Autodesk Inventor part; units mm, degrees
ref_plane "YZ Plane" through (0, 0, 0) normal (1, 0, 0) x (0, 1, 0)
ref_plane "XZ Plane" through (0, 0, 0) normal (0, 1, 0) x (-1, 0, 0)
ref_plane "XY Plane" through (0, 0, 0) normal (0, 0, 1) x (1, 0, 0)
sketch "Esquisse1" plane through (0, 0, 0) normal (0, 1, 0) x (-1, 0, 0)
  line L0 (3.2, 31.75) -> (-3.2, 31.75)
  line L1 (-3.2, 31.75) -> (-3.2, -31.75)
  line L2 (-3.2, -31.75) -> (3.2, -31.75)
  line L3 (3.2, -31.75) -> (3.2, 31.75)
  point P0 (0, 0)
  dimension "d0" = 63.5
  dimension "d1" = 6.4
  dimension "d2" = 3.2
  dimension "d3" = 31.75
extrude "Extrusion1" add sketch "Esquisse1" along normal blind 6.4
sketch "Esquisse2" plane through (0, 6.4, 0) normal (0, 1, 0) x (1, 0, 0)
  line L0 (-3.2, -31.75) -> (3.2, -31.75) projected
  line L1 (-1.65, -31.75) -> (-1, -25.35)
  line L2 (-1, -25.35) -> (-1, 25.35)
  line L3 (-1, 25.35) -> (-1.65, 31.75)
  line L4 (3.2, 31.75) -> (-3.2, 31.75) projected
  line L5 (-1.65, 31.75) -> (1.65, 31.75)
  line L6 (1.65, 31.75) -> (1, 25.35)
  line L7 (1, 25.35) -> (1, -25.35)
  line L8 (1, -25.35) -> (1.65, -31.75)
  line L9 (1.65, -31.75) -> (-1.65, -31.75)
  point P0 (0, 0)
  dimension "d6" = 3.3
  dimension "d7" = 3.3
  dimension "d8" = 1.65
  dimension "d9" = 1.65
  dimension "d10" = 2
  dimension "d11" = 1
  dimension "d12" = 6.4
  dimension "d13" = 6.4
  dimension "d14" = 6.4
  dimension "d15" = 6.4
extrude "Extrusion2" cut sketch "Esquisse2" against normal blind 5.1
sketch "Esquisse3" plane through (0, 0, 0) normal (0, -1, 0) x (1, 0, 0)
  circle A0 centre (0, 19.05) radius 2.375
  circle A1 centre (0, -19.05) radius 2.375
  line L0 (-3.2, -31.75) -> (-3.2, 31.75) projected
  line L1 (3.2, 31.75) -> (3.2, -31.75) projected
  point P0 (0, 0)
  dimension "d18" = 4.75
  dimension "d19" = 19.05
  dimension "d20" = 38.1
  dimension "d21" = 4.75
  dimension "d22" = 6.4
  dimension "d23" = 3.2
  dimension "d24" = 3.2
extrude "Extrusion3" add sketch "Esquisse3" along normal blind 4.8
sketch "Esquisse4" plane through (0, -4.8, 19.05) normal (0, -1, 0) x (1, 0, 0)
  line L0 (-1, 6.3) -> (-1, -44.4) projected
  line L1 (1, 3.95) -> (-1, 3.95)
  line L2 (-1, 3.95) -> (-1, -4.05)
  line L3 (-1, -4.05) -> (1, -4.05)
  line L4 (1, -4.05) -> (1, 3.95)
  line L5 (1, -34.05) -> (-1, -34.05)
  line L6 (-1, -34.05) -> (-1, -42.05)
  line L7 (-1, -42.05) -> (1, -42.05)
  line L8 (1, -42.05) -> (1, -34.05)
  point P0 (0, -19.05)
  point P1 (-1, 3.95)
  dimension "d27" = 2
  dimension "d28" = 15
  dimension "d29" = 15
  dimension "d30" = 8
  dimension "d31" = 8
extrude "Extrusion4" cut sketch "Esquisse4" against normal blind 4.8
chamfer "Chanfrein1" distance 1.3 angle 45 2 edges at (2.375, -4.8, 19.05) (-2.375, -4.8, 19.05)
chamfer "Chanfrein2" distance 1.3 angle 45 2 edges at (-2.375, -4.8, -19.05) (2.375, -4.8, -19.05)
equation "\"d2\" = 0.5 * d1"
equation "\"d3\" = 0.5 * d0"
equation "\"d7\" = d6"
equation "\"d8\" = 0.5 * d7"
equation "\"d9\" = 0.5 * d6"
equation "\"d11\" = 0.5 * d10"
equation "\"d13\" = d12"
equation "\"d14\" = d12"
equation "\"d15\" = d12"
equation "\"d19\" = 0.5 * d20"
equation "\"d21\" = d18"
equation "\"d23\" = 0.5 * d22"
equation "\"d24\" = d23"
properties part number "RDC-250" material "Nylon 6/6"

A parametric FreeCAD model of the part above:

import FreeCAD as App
import Part
import Sketcher

V = App.Vector
Q = App.Units.Quantity


def edges_at(feature, points):
    """Names of the edges that pass closest to the given points."""
    edges = feature.Shape.Edges
    near = lambda p: min(range(len(edges)), key=lambda i: edges[i].distToShape(Part.Vertex(*p))[0])
    return sorted({f"Edge{near(p) + 1}" for p in points})

doc = App.newDocument("Part")
body = doc.addObject("PartDesign::Body", "Body")

# Sketch on XZ plane
sketch1 = body.newObject("Sketcher::SketchObject", "Sketch")
sketch1.AttachmentSupport = (doc.getObject("XZ_Plane"), [""])
sketch1.MapMode = "FlatFace"
sketch1.addGeometry(Part.LineSegment(V(-3.2, -31.75, 0), V(-3.2, 31.75, 0)), False)
sketch1.addGeometry(Part.LineSegment(V(-3.2, 31.75, 0), V(3.2, 31.75, 0)), False)
sketch1.addGeometry(Part.LineSegment(V(3.2, 31.75, 0), V(3.2, -31.75, 0)), False)
sketch1.addGeometry(Part.LineSegment(V(3.2, -31.75, 0), V(-3.2, -31.75, 0)), False)
sketch1.addConstraint(Sketcher.Constraint("Coincident", 0, 2, 1, 1))
sketch1.addConstraint(Sketcher.Constraint("Coincident", 1, 2, 2, 1))
sketch1.addConstraint(Sketcher.Constraint("Coincident", 2, 2, 3, 1))
sketch1.addConstraint(Sketcher.Constraint("Coincident", 3, 2, 0, 1))
sketch1.addConstraint(Sketcher.Constraint("Vertical", 0))
sketch1.addConstraint(Sketcher.Constraint("Horizontal", 1))
sketch1.addConstraint(Sketcher.Constraint("Vertical", 2))
sketch1.addConstraint(Sketcher.Constraint("Horizontal", 3))
sketch1.addConstraint(Sketcher.Constraint("Symmetric", 0, 2, 2, 2, -1, 1))
sketch1.addConstraint(Sketcher.Constraint("DistanceX", 1, 1, 1, 2, Q("6.4 mm")))
sketch1.addConstraint(Sketcher.Constraint("DistanceY", 0, 1, 0, 2, Q("63.5 mm")))
pad1 = body.newObject("PartDesign::Pad", "Pad")
pad1.Profile = sketch1
pad1.Length = 6.4
pad1.Reversed = True

# Sketch on XZ plane
sketch2 = body.newObject("Sketcher::SketchObject", "Sketch001")
sketch2.AttachmentSupport = (doc.getObject("XZ_Plane"), [""])
sketch2.MapMode = "FlatFace"
sketch2.AttachmentOffset = App.Placement(V(0, 0, -6.4), App.Rotation())
sketch2.addGeometry(Part.LineSegment(V(-1, 25.35, 0), V(-1.65, 31.75, 0)), False)
sketch2.addGeometry(Part.LineSegment(V(-1.65, 31.75, 0), V(1.65, 31.75, 0)), False)
sketch2.addGeometry(Part.LineSegment(V(1.65, 31.75, 0), V(1, 25.35, 0)), False)
sketch2.addGeometry(Part.LineSegment(V(1, 25.35, 0), V(1, -25.35, 0)), False)
sketch2.addGeometry(Part.LineSegment(V(1, -25.35, 0), V(1.65, -31.75, 0)), False)
sketch2.addGeometry(Part.LineSegment(V(1.65, -31.75, 0), V(-1.65, -31.75, 0)), False)
sketch2.addGeometry(Part.LineSegment(V(-1.65, -31.75, 0), V(-1, -25.35, 0)), False)
sketch2.addGeometry(Part.LineSegment(V(-1, -25.35, 0), V(-1, 25.35, 0)), False)
sketch2.addConstraint(Sketcher.Constraint("Coincident", 0, 2, 1, 1))
sketch2.addConstraint(Sketcher.Constraint("Coincident", 1, 2, 2, 1))
sketch2.addConstraint(Sketcher.Constraint("Coincident", 2, 2, 3, 1))
sketch2.addConstraint(Sketcher.Constraint("Coincident", 3, 2, 4, 1))
sketch2.addConstraint(Sketcher.Constraint("Coincident", 4, 2, 5, 1))
sketch2.addConstraint(Sketcher.Constraint("Coincident", 5, 2, 6, 1))
sketch2.addConstraint(Sketcher.Constraint("Coincident", 6, 2, 7, 1))
sketch2.addConstraint(Sketcher.Constraint("Coincident", 7, 2, 0, 1))
sketch2.addConstraint(Sketcher.Constraint("Horizontal", 1))
sketch2.addConstraint(Sketcher.Constraint("Vertical", 3))
sketch2.addConstraint(Sketcher.Constraint("Horizontal", 5))
sketch2.addConstraint(Sketcher.Constraint("Vertical", 7))
sketch2.addConstraint(Sketcher.Constraint("Symmetric", 0, 2, 4, 2, -1, 1))
sketch2.addConstraint(Sketcher.Constraint("Symmetric", 2, 2, 6, 2, -1, 1))
sketch2.addConstraint(Sketcher.Constraint("Parallel", 0, 4))
sketch2.addConstraint(Sketcher.Constraint("Parallel", 2, 6))
sketch2.addConstraint(Sketcher.Constraint("Horizontal", 3, 2, 6, 2))
sketch2.addConstraint(Sketcher.Constraint("Vertical", 1, 2, 4, 2))
sketch2.addConstraint(Sketcher.Constraint("DistanceX", 1, 1, 1, 2, Q("3.3 mm")))
sketch2.addConstraint(Sketcher.Constraint("DistanceX", -1, 1, 2, 2, Q("1 mm")))
sketch2.addConstraint(Sketcher.Constraint("DistanceY", 2, 2, 1, 2, Q("6.4 mm")))
sketch2.addConstraint(Sketcher.Constraint("DistanceY", 3, 2, 3, 1, Q("50.7 mm")))
pocket1 = body.newObject("PartDesign::Pocket", "Pocket")
pocket1.Profile = sketch2
pocket1.Length = 5.1
pocket1.Reversed = True

# Sketch on XZ plane
sketch3 = body.newObject("Sketcher::SketchObject", "Sketch002")
sketch3.AttachmentSupport = (doc.getObject("XZ_Plane"), [""])
sketch3.MapMode = "FlatFace"
sketch3.addGeometry(Part.Circle(V(0, 19.05, 0), V(0, 0, 1), 2.375), False)
sketch3.addGeometry(Part.Circle(V(0, -19.05, 0), V(0, 0, 1), 2.375), False)
sketch3.addConstraint(Sketcher.Constraint("Equal", 0, 1))
sketch3.addConstraint(Sketcher.Constraint("Symmetric", 0, 3, 1, 3, -1, 1))
sketch3.addConstraint(Sketcher.Constraint("PointOnObject", 0, 3, -2))
sketch3.addConstraint(Sketcher.Constraint("Diameter", 0, Q("4.75 mm")))
sketch3.addConstraint(Sketcher.Constraint("DistanceY", 1, 3, 0, 3, Q("38.1 mm")))
pad2 = body.newObject("PartDesign::Pad", "Pad001")
pad2.Profile = sketch3
pad2.Length = 4.8

# Sketch on XZ plane
sketch4 = body.newObject("Sketcher::SketchObject", "Sketch003")
sketch4.AttachmentSupport = (doc.getObject("XZ_Plane"), [""])
sketch4.MapMode = "FlatFace"
sketch4.AttachmentOffset = App.Placement(V(0, 0, 4.8), App.Rotation())
sketch4.addGeometry(Part.LineSegment(V(1, 23, 0), V(-1, 23, 0)), False)
sketch4.addGeometry(Part.LineSegment(V(-1, 23, 0), V(-1, 15, 0)), False)
sketch4.addGeometry(Part.LineSegment(V(-1, 15, 0), V(1, 15, 0)), False)
sketch4.addGeometry(Part.LineSegment(V(1, 15, 0), V(1, 23, 0)), False)
sketch4.addGeometry(Part.LineSegment(V(1, -15, 0), V(-1, -15, 0)), False)
sketch4.addGeometry(Part.LineSegment(V(-1, -15, 0), V(-1, -23, 0)), False)
sketch4.addGeometry(Part.LineSegment(V(-1, -23, 0), V(1, -23, 0)), False)
sketch4.addGeometry(Part.LineSegment(V(1, -23, 0), V(1, -15, 0)), False)
sketch4.addConstraint(Sketcher.Constraint("Coincident", 0, 2, 1, 1))
sketch4.addConstraint(Sketcher.Constraint("Coincident", 1, 2, 2, 1))
sketch4.addConstraint(Sketcher.Constraint("Coincident", 2, 2, 3, 1))
sketch4.addConstraint(Sketcher.Constraint("Coincident", 3, 2, 0, 1))
sketch4.addConstraint(Sketcher.Constraint("Coincident", 4, 2, 5, 1))
sketch4.addConstraint(Sketcher.Constraint("Coincident", 5, 2, 6, 1))
sketch4.addConstraint(Sketcher.Constraint("Coincident", 6, 2, 7, 1))
sketch4.addConstraint(Sketcher.Constraint("Coincident", 7, 2, 4, 1))
sketch4.addConstraint(Sketcher.Constraint("Horizontal", 0))
sketch4.addConstraint(Sketcher.Constraint("Vertical", 1))
sketch4.addConstraint(Sketcher.Constraint("Horizontal", 2))
sketch4.addConstraint(Sketcher.Constraint("Vertical", 3))
sketch4.addConstraint(Sketcher.Constraint("Horizontal", 4))
sketch4.addConstraint(Sketcher.Constraint("Vertical", 5))
sketch4.addConstraint(Sketcher.Constraint("Horizontal", 6))
sketch4.addConstraint(Sketcher.Constraint("Vertical", 7))
sketch4.addConstraint(Sketcher.Constraint("Symmetric", 2, 2, 4, 2, -1, 1))
sketch4.addConstraint(Sketcher.Constraint("Symmetric", 0, 2, 6, 2, -1, 1))
sketch4.addConstraint(Sketcher.Constraint("Vertical", 1, 2, 4, 2))
sketch4.addConstraint(Sketcher.Constraint("DistanceX", 0, 2, 0, 1, Q("2 mm")))
sketch4.addConstraint(Sketcher.Constraint("DistanceY", 1, 2, 1, 1, Q("8 mm")))
sketch4.addConstraint(Sketcher.Constraint("DistanceY", -1, 1, 1, 2, Q("15 mm")))
pocket2 = body.newObject("PartDesign::Pocket", "Pocket001")
pocket2.Profile = sketch4
pocket2.Length = 4.8
doc.recompute()

chamfer = body.newObject("PartDesign::Chamfer", "Chamfer")
chamfer.Base = (pocket2, edges_at(pocket2, [(2.375, -4.8, 19.05), (-2.375, -4.8, 19.05)]))
chamfer.Size = 1.3
doc.recompute()

chamfer2 = body.newObject("PartDesign::Chamfer", "Chamfer001")
chamfer2.Base = (chamfer, edges_at(chamfer, [(-2.375, -4.8, -19.05), (2.375, -4.8, -19.05)]))
chamfer2.Size = 1.3

doc.recompute()
